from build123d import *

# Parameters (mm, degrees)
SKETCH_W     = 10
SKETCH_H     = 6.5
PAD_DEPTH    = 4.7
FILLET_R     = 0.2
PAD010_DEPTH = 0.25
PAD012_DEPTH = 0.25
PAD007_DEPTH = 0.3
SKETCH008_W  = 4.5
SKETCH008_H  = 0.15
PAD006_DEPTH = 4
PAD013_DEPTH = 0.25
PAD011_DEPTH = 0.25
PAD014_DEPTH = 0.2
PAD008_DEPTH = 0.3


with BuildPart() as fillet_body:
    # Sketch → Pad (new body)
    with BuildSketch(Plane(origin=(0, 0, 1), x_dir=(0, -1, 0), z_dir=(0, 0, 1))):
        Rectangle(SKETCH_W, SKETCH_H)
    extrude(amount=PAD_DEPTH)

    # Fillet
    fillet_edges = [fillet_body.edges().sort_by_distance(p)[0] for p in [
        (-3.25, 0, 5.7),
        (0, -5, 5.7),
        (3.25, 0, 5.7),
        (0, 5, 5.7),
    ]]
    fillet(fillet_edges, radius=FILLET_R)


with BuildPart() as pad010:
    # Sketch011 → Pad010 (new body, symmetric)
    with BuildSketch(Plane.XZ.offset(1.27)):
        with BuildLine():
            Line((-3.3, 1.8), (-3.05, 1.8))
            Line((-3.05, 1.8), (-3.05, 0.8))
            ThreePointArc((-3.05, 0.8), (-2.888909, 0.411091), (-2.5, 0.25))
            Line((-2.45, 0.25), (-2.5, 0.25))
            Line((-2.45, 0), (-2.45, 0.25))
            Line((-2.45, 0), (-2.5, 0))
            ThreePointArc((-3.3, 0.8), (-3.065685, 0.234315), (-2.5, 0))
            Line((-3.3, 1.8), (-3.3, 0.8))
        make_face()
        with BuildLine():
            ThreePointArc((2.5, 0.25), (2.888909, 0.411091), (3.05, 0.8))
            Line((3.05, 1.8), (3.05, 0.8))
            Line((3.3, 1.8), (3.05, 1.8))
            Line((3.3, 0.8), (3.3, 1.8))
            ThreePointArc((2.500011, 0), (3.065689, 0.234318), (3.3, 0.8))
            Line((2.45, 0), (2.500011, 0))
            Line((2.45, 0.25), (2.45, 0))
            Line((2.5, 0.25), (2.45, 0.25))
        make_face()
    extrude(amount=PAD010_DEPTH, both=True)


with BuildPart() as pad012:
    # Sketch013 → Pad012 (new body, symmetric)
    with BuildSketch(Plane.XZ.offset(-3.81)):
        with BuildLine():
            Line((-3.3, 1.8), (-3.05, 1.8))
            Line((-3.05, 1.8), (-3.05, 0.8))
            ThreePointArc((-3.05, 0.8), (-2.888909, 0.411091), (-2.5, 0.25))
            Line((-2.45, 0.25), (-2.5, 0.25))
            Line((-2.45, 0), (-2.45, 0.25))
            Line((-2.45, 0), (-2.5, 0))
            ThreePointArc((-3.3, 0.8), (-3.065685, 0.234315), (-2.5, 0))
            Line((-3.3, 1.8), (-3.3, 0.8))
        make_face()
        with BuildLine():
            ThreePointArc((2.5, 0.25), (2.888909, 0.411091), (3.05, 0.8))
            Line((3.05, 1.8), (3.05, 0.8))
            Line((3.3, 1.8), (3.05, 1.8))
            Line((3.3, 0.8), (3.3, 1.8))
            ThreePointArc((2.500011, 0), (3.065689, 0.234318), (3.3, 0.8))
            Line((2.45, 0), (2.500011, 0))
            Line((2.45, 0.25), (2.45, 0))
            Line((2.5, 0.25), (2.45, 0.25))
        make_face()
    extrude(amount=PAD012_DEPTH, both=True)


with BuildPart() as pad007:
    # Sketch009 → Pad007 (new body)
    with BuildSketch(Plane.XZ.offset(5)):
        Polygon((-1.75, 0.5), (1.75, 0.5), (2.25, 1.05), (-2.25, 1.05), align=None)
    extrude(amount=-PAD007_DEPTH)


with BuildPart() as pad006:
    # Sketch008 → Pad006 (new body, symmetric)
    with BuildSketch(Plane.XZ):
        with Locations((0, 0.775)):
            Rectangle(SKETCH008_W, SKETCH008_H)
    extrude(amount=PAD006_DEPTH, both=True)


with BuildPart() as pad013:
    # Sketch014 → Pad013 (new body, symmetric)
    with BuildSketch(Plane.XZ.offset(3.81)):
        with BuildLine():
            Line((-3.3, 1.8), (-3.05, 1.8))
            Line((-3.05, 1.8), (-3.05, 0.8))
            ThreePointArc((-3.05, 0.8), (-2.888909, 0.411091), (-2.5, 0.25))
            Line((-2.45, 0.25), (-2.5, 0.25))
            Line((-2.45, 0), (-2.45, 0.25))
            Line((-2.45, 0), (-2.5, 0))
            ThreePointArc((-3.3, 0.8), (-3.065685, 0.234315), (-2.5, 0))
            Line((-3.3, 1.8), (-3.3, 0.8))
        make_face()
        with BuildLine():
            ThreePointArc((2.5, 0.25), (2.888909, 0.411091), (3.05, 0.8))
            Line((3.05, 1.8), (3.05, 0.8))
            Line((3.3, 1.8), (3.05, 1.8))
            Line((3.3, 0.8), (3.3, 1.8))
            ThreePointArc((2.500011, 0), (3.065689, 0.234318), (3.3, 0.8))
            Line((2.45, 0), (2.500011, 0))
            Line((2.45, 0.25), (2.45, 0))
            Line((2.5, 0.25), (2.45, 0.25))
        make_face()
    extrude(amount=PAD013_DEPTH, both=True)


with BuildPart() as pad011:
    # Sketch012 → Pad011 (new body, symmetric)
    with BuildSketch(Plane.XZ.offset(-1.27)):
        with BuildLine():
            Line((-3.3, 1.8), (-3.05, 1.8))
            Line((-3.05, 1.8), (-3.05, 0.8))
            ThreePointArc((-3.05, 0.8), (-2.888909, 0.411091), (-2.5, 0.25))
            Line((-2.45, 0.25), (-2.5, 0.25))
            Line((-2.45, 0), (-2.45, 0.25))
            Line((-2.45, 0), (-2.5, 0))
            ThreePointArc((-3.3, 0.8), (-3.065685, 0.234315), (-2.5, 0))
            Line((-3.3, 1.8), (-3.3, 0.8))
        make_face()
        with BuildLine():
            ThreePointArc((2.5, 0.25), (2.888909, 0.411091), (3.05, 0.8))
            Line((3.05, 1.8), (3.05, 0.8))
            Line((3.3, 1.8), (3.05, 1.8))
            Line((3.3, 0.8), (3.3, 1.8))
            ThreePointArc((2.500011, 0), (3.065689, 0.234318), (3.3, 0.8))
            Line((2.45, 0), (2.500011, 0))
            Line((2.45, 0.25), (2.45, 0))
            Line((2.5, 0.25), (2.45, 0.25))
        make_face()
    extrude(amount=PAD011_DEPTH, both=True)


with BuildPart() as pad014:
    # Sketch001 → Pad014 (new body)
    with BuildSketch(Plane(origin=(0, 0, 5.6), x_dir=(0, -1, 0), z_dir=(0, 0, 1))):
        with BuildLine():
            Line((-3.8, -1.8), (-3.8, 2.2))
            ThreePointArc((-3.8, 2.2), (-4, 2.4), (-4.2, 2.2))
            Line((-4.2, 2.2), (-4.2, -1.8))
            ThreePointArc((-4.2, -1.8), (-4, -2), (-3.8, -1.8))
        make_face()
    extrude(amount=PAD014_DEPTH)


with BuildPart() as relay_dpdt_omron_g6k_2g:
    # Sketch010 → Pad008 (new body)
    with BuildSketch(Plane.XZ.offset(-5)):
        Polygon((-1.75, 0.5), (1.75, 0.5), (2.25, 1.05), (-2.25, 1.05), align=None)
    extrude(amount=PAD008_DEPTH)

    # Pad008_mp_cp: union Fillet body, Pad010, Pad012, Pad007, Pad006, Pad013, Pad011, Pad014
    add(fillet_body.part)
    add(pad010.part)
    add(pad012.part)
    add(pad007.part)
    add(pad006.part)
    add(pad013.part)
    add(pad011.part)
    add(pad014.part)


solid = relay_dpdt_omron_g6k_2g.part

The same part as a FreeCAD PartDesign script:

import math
import FreeCAD as App
import Part
import Sketcher
Q = App.Units.Quantity


def edges_at(feature, points):
    """Names of the edges that pass closest to the given points."""
    edges = feature.Shape.Edges
    near = lambda p: min(range(len(edges)), key=lambda i: edges[i].distToShape(Part.Vertex(*p))[0])
    return sorted({f"Edge{near(p) + 1}" for p in points})

doc = App.newDocument("Part")
body = doc.addObject("PartDesign::Body", "Body")

# Sketch on XY plane
sketch1 = body.newObject("Sketcher::SketchObject", "Sketch")
sketch1.AttachmentSupport = (doc.getObject("XY_Plane"), [""])
sketch1.MapMode = "FlatFace"
sketch1.AttachmentOffset = App.Placement(App.Vector(0, 0, 1), App.Rotation())
sketch1.addGeometry(Part.LineSegment(App.Vector(3.25, 5, 0), App.Vector(-3.25, 5, 0)), False)
sketch1.addGeometry(Part.LineSegment(App.Vector(-3.25, 5, 0), App.Vector(-3.25, -5, 0)), False)
sketch1.addGeometry(Part.LineSegment(App.Vector(-3.25, -5, 0), App.Vector(3.25, -5, 0)), False)
sketch1.addGeometry(Part.LineSegment(App.Vector(3.25, -5, 0), App.Vector(3.25, 5, 0)), False)
sketch1.addConstraint(Sketcher.Constraint("Coincident", 0, 2, 1, 1))
sketch1.addConstraint(Sketcher.Constraint("Coincident", 1, 2, 2, 1))
sketch1.addConstraint(Sketcher.Constraint("Coincident", 2, 2, 3, 1))
sketch1.addConstraint(Sketcher.Constraint("Coincident", 3, 2, 0, 1))
sketch1.addConstraint(Sketcher.Constraint("Horizontal", 0))
sketch1.addConstraint(Sketcher.Constraint("Vertical", 1))
sketch1.addConstraint(Sketcher.Constraint("Horizontal", 2))
sketch1.addConstraint(Sketcher.Constraint("Vertical", 3))
sketch1.addConstraint(Sketcher.Constraint("Symmetric", 0, 2, 2, 2, -1, 1))
sketch1.addConstraint(Sketcher.Constraint("DistanceY", 1, 2, 1, 1, Q("10 mm")))
sketch1.addConstraint(Sketcher.Constraint("DistanceX", 0, 2, 0, 1, Q("6.5 mm")))
pad1 = body.newObject("PartDesign::Pad", "Pad")
pad1.Profile = sketch1
pad1.Length = 4.7
doc.recompute()

fillet = body.newObject("PartDesign::Fillet", "Fillet")
fillet.Base = (pad1, edges_at(pad1, [
    (-3.25, 0, 5.7),
    (0, -5, 5.7),
    (3.25, 0, 5.7),
    (0, 5, 5.7),
]))
fillet.Radius = 0.2
body2 = doc.addObject("PartDesign::Body", "Body001")
body2.AllowCompound = True

# Sketch on XZ plane
sketch2 = body2.newObject("Sketcher::SketchObject", "Sketch001")
sketch2.AttachmentSupport = (doc.getObject("XZ_Plane001"), [""])
sketch2.MapMode = "FlatFace"
sketch2.AttachmentOffset = App.Placement(App.Vector(0, 0, 1.27), App.Rotation())
sketch2.addGeometry(Part.LineSegment(App.Vector(-3.05, 1.8, 0), App.Vector(-3.3, 1.8, 0)), False)
sketch2.addGeometry(Part.LineSegment(App.Vector(-3.3, 1.8, 0), App.Vector(-3.3, 0.8, 0)), False)
sketch2.addGeometry(Part.ArcOfCircle(Part.Circle(App.Vector(-2.499999, 0.800001, 0), App.Vector(0, 0, 1), 0.800001), math.radians(-179.999896), math.radians(-90.000104)), False)
sketch2.addGeometry(Part.LineSegment(App.Vector(-2.5, 0, 0), App.Vector(-2.45, 0, 0)), False)
sketch2.addGeometry(Part.LineSegment(App.Vector(-2.45, 0, 0), App.Vector(-2.45, 0.25, 0)), False)
sketch2.addGeometry(Part.LineSegment(App.Vector(-2.45, 0.25, 0), App.Vector(-2.5, 0.25, 0)), False)
sketch2.addGeometry(Part.ArcOfCircle(Part.Circle(App.Vector(-2.500001, 0.799999, 0), App.Vector(0, 0, 1), 0.549999), math.radians(179.999904), math.radians(270.000096)), False)
sketch2.addGeometry(Part.LineSegment(App.Vector(-3.05, 0.8, 0), App.Vector(-3.05, 1.8, 0)), False)
sketch2.addGeometry(Part.ArcOfCircle(Part.Circle(App.Vector(2.500001, 0.799999, 0), App.Vector(0, 0, 1), 0.549999), math.radians(-90.000096), math.radians(0.000096)), False)
sketch2.addGeometry(Part.LineSegment(App.Vector(2.5, 0.25, 0), App.Vector(2.45, 0.25, 0)), False)
sketch2.addGeometry(Part.LineSegment(App.Vector(2.45, 0.25, 0), App.Vector(2.45, 0, 0)), False)
sketch2.addGeometry(Part.LineSegment(App.Vector(2.45, 0, 0), App.Vector(2.500011, 0, 0)), False)
sketch2.addGeometry(Part.ArcOfCircle(Part.Circle(App.Vector(2.5, 0.8, 0), App.Vector(0, 0, 1), 0.8), math.radians(-89.999231), math.radians(0.000018)), False)
sketch2.addGeometry(Part.LineSegment(App.Vector(3.3, 0.8, 0), App.Vector(3.3, 1.8, 0)), False)
sketch2.addGeometry(Part.LineSegment(App.Vector(3.3, 1.8, 0), App.Vector(3.05, 1.8, 0)), False)
sketch2.addGeometry(Part.LineSegment(App.Vector(3.05, 1.8, 0), App.Vector(3.05, 0.8, 0)), False)
sketch2.addConstraint(Sketcher.Constraint("Coincident", 0, 2, 1, 1))
sketch2.addConstraint(Sketcher.Constraint("Tangent", 1, 2, 2, 1))
sketch2.addConstraint(Sketcher.Constraint("Tangent", 2, 2, 3, 1))
sketch2.addConstraint(Sketcher.Constraint("Coincident", 3, 2, 4, 1))
sketch2.addConstraint(Sketcher.Constraint("Coincident", 4, 2, 5, 1))
sketch2.addConstraint(Sketcher.Constraint("Tangent", 5, 2, 6, 2))
sketch2.addConstraint(Sketcher.Constraint("Tangent", 6, 1, 7, 1))
sketch2.addConstraint(Sketcher.Constraint("Coincident", 7, 2, 0, 1))
sketch2.addConstraint(Sketcher.Constraint("Tangent", 8, 1, 9, 1))
sketch2.addConstraint(Sketcher.Constraint("Coincident", 9, 2, 10, 1))
sketch2.addConstraint(Sketcher.Constraint("Coincident", 10, 2, 11, 1))
sketch2.addConstraint(Sketcher.Constraint("Coincident", 11, 2, 12, 1))
sketch2.addConstraint(Sketcher.Constraint("Tangent", 12, 2, 13, 1))
sketch2.addConstraint(Sketcher.Constraint("Coincident", 13, 2, 14, 1))
sketch2.addConstraint(Sketcher.Constraint("Coincident", 14, 2, 15, 1))
sketch2.addConstraint(Sketcher.Constraint("Tangent", 15, 2, 8, 2))
sketch2.addConstraint(Sketcher.Constraint("Horizontal", 0))
sketch2.addConstraint(Sketcher.Constraint("Vertical", 1))
sketch2.addConstraint(Sketcher.Constraint("Horizontal", 3))
sketch2.addConstraint(Sketcher.Constraint("Vertical", 4))
sketch2.addConstraint(Sketcher.Constraint("Horizontal", 5))
sketch2.addConstraint(Sketcher.Constraint("Vertical", 7))
sketch2.addConstraint(Sketcher.Constraint("Horizontal", 9))
sketch2.addConstraint(Sketcher.Constraint("Vertical", 10))
sketch2.addConstraint(Sketcher.Constraint("Horizontal", 11))
sketch2.addConstraint(Sketcher.Constraint("Vertical", 13))
sketch2.addConstraint(Sketcher.Constraint("Horizontal", 14))
sketch2.addConstraint(Sketcher.Constraint("Vertical", 15))
sketch2.addConstraint(Sketcher.Constraint("Coincident", 6, 3, 2, 3))
sketch2.addConstraint(Sketcher.Constraint("Coincident", 12, 3, 8, 3))
sketch2.addConstraint(Sketcher.Constraint("Equal", 6, 8))
sketch2.addConstraint(Sketcher.Constraint("Equal", 2, 12))
sketch2.addConstraint(Sketcher.Constraint("Symmetric", 3, 2, 10, 2, -1, 1))
sketch2.addConstraint(Sketcher.Constraint("Symmetric", 2, 3, 8, 3, -2))
sketch2.addConstraint(Sketcher.Constraint("Horizontal", 7, 2, 13, 2))
sketch2.addConstraint(Sketcher.Constraint("Radius", 2, Q("0.800001 mm")))
sketch2.addConstraint(Sketcher.Constraint("DistanceY", 1, 2, 1, 1, Q("1 mm")))
sketch2.addConstraint(Sketcher.Constraint("Radius", 6, Q("0.549999 mm")))
sketch2.addConstraint(Sketcher.Constraint("DistanceX", 2, 3, 8, 3, Q("4.999999 mm")))
sketch2.addConstraint(Sketcher.Constraint("DistanceX", 3, 1, 3, 2, Q("0.05 mm")))
sketch2.addConstraint(Sketcher.Constraint("DistanceX", 11, 1, 11, 2, Q("0.050011 mm")))
pad2 = body2.newObject("PartDesign::Pad", "Pad001")
pad2.Profile = sketch2
pad2.Length = 0.5
pad2.Midplane = True
body3 = doc.addObject("PartDesign::Body", "Body002")
body3.AllowCompound = True

# Sketch on XZ plane
sketch3 = body3.newObject("Sketcher::SketchObject", "Sketch002")
sketch3.AttachmentSupport = (doc.getObject("XZ_Plane002"), [""])
sketch3.MapMode = "FlatFace"
sketch3.AttachmentOffset = App.Placement(App.Vector(0, 0, -3.81), App.Rotation())
sketch3.addGeometry(Part.LineSegment(App.Vector(-3.05, 1.8, 0), App.Vector(-3.3, 1.8, 0)), False)
sketch3.addGeometry(Part.LineSegment(App.Vector(-3.3, 1.8, 0), App.Vector(-3.3, 0.8, 0)), False)
sketch3.addGeometry(Part.ArcOfCircle(Part.Circle(App.Vector(-2.499999, 0.800001, 0), App.Vector(0, 0, 1), 0.800001), math.radians(-179.999896), math.radians(-90.000104)), False)
sketch3.addGeometry(Part.LineSegment(App.Vector(-2.5, 0, 0), App.Vector(-2.45, 0, 0)), False)
sketch3.addGeometry(Part.LineSegment(App.Vector(-2.45, 0, 0), App.Vector(-2.45, 0.25, 0)), False)
sketch3.addGeometry(Part.LineSegment(App.Vector(-2.45, 0.25, 0), App.Vector(-2.5, 0.25, 0)), False)
sketch3.addGeometry(Part.ArcOfCircle(Part.Circle(App.Vector(-2.500001, 0.799999, 0), App.Vector(0, 0, 1), 0.549999), math.radians(179.999904), math.radians(270.000096)), False)
sketch3.addGeometry(Part.LineSegment(App.Vector(-3.05, 0.8, 0), App.Vector(-3.05, 1.8, 0)), False)
sketch3.addGeometry(Part.ArcOfCircle(Part.Circle(App.Vector(2.500001, 0.799999, 0), App.Vector(0, 0, 1), 0.549999), math.radians(-90.000096), math.radians(0.000096)), False)
sketch3.addGeometry(Part.LineSegment(App.Vector(2.5, 0.25, 0), App.Vector(2.45, 0.25, 0)), False)
sketch3.addGeometry(Part.LineSegment(App.Vector(2.45, 0.25, 0), App.Vector(2.45, 0, 0)), False)
sketch3.addGeometry(Part.LineSegment(App.Vector(2.45, 0, 0), App.Vector(2.500011, 0, 0)), False)
sketch3.addGeometry(Part.ArcOfCircle(Part.Circle(App.Vector(2.5, 0.8, 0), App.Vector(0, 0, 1), 0.8), math.radians(-89.999231), math.radians(0.000018)), False)
sketch3.addGeometry(Part.LineSegment(App.Vector(3.3, 0.8, 0), App.Vector(3.3, 1.8, 0)), False)
sketch3.addGeometry(Part.LineSegment(App.Vector(3.3, 1.8, 0), App.Vector(3.05, 1.8, 0)), False)
sketch3.addGeometry(Part.LineSegment(App.Vector(3.05, 1.8, 0), App.Vector(3.05, 0.8, 0)), False)
sketch3.addConstraint(Sketcher.Constraint("Coincident", 0, 2, 1, 1))
sketch3.addConstraint(Sketcher.Constraint("Tangent", 1, 2, 2, 1))
sketch3.addConstraint(Sketcher.Constraint("Tangent", 2, 2, 3, 1))
sketch3.addConstraint(Sketcher.Constraint("Coincident", 3, 2, 4, 1))
sketch3.addConstraint(Sketcher.Constraint("Coincident", 4, 2, 5, 1))
sketch3.addConstraint(Sketcher.Constraint("Tangent", 5, 2, 6, 2))
sketch3.addConstraint(Sketcher.Constraint("Tangent", 6, 1, 7, 1))
sketch3.addConstraint(Sketcher.Constraint("Coincident", 7, 2, 0, 1))
sketch3.addConstraint(Sketcher.Constraint("Tangent", 8, 1, 9, 1))
sketch3.addConstraint(Sketcher.Constraint("Coincident", 9, 2, 10, 1))
sketch3.addConstraint(Sketcher.Constraint("Coincident", 10, 2, 11, 1))
sketch3.addConstraint(Sketcher.Constraint("Coincident", 11, 2, 12, 1))
sketch3.addConstraint(Sketcher.Constraint("Tangent", 12, 2, 13, 1))
sketch3.addConstraint(Sketcher.Constraint("Coincident", 13, 2, 14, 1))
sketch3.addConstraint(Sketcher.Constraint("Coincident", 14, 2, 15, 1))
sketch3.addConstraint(Sketcher.Constraint("Tangent", 15, 2, 8, 2))
sketch3.addConstraint(Sketcher.Constraint("Horizontal", 0))
sketch3.addConstraint(Sketcher.Constraint("Vertical", 1))
sketch3.addConstraint(Sketcher.Constraint("Horizontal", 3))
sketch3.addConstraint(Sketcher.Constraint("Vertical", 4))
sketch3.addConstraint(Sketcher.Constraint("Horizontal", 5))
sketch3.addConstraint(Sketcher.Constraint("Vertical", 7))
sketch3.addConstraint(Sketcher.Constraint("Horizontal", 9))
sketch3.addConstraint(Sketcher.Constraint("Vertical", 10))
sketch3.addConstraint(Sketcher.Constraint("Horizontal", 11))
sketch3.addConstraint(Sketcher.Constraint("Vertical", 13))
sketch3.addConstraint(Sketcher.Constraint("Horizontal", 14))
sketch3.addConstraint(Sketcher.Constraint("Vertical", 15))
sketch3.addConstraint(Sketcher.Constraint("Coincident", 6, 3, 2, 3))
sketch3.addConstraint(Sketcher.Constraint("Coincident", 12, 3, 8, 3))
sketch3.addConstraint(Sketcher.Constraint("Equal", 6, 8))
sketch3.addConstraint(Sketcher.Constraint("Equal", 2, 12))
sketch3.addConstraint(Sketcher.Constraint("Symmetric", 3, 2, 10, 2, -1, 1))
sketch3.addConstraint(Sketcher.Constraint("Symmetric", 2, 3, 8, 3, -2))
sketch3.addConstraint(Sketcher.Constraint("Horizontal", 7, 2, 13, 2))
sketch3.addConstraint(Sketcher.Constraint("Radius", 2, Q("0.800001 mm")))
sketch3.addConstraint(Sketcher.Constraint("DistanceY", 1, 2, 1, 1, Q("1 mm")))
sketch3.addConstraint(Sketcher.Constraint("Radius", 6, Q("0.549999 mm")))
sketch3.addConstraint(Sketcher.Constraint("DistanceX", 2, 3, 8, 3, Q("4.999999 mm")))
sketch3.addConstraint(Sketcher.Constraint("DistanceX", 3, 1, 3, 2, Q("0.05 mm")))
sketch3.addConstraint(Sketcher.Constraint("DistanceX", 11, 1, 11, 2, Q("0.050011 mm")))
pad3 = body3.newObject("PartDesign::Pad", "Pad002")
pad3.Profile = sketch3
pad3.Length = 0.5
pad3.Midplane = True
body4 = doc.addObject("PartDesign::Body", "Body003")

# Sketch on XZ plane
sketch4 = body4.newObject("Sketcher::SketchObject", "Sketch003")
sketch4.AttachmentSupport = (doc.getObject("XZ_Plane003"), [""])
sketch4.MapMode = "FlatFace"
sketch4.AttachmentOffset = App.Placement(App.Vector(0, 0, 5), App.Rotation())
sketch4.addGeometry(Part.LineSegment(App.Vector(-1.75, 0.5, 0), App.Vector(1.75, 0.5, 0)), False)
sketch4.addGeometry(Part.LineSegment(App.Vector(1.75, 0.5, 0), App.Vector(2.25, 1.05, 0)), False)
sketch4.addGeometry(Part.LineSegment(App.Vector(2.25, 1.05, 0), App.Vector(-2.25, 1.05, 0)), False)
sketch4.addGeometry(Part.LineSegment(App.Vector(-2.25, 1.05, 0), App.Vector(-1.75, 0.5, 0)), False)
sketch4.addConstraint(Sketcher.Constraint("Coincident", 0, 2, 1, 1))
sketch4.addConstraint(Sketcher.Constraint("Coincident", 1, 2, 2, 1))
sketch4.addConstraint(Sketcher.Constraint("Coincident", 2, 2, 3, 1))
sketch4.addConstraint(Sketcher.Constraint("Coincident", 3, 2, 0, 1))
sketch4.addConstraint(Sketcher.Constraint("Horizontal", 0))
sketch4.addConstraint(Sketcher.Constraint("Horizontal", 2))
sketch4.addConstraint(Sketcher.Constraint("Equal", 1, 3))
sketch4.addConstraint(Sketcher.Constraint("DistanceX", 0, 1, 0, 2, Q("3.5 mm")))
sketch4.addConstraint(Sketcher.Constraint("DistanceX", 2, 2, 2, 1, Q("4.5 mm")))
sketch4.addConstraint(Sketcher.Constraint("DistanceY", -1, 1, 0, 2, Q("0.5 mm")))
sketch4.addConstraint(Sketcher.Constraint("DistanceX", -1, 1, 0, 2, Q("1.75 mm")))
sketch4.addConstraint(Sketcher.Constraint("DistanceY", -1, 1, 1, 2, Q("1.05 mm")))
pad4 = body4.newObject("PartDesign::Pad", "Pad003")
pad4.Profile = sketch4
pad4.Length = 0.3
pad4.Reversed = True
body5 = doc.addObject("PartDesign::Body", "Body004")

# Sketch on XZ plane
sketch5 = body5.newObject("Sketcher::SketchObject", "Sketch004")
sketch5.AttachmentSupport = (doc.getObject("XZ_Plane004"), [""])
sketch5.MapMode = "FlatFace"
sketch5.addGeometry(Part.LineSegment(App.Vector(-2.25, 0.85, 0), App.Vector(-2.25, 0.7, 0)), False)
sketch5.addGeometry(Part.LineSegment(App.Vector(-2.25, 0.7, 0), App.Vector(2.25, 0.7, 0)), False)
sketch5.addGeometry(Part.LineSegment(App.Vector(2.25, 0.7, 0), App.Vector(2.25, 0.85, 0)), False)
sketch5.addGeometry(Part.LineSegment(App.Vector(2.25, 0.85, 0), App.Vector(-2.25, 0.85, 0)), False)
sketch5.addConstraint(Sketcher.Constraint("Coincident", 0, 2, 1, 1))
sketch5.addConstraint(Sketcher.Constraint("Coincident", 1, 2, 2, 1))
sketch5.addConstraint(Sketcher.Constraint("Coincident", 2, 2, 3, 1))
sketch5.addConstraint(Sketcher.Constraint("Coincident", 3, 2, 0, 1))
sketch5.addConstraint(Sketcher.Constraint("Vertical", 0))
sketch5.addConstraint(Sketcher.Constraint("Horizontal", 1))
sketch5.addConstraint(Sketcher.Constraint("Vertical", 2))
sketch5.addConstraint(Sketcher.Constraint("Horizontal", 3))
sketch5.addConstraint(Sketcher.Constraint("DistanceX", 1, 1, 1, 2, Q("4.5 mm")))
sketch5.addConstraint(Sketcher.Constraint("DistanceY", 0, 2, 0, 1, Q("0.15 mm")))
sketch5.addConstraint(Sketcher.Constraint("DistanceY", -1, 1, 0, 2, Q("0.7 mm")))
sketch5.addConstraint(Sketcher.Constraint("DistanceX", 0, 2, -1, 1, Q("2.25 mm")))
pad5 = body5.newObject("PartDesign::Pad", "Pad004")
pad5.Profile = sketch5
pad5.Length = 8
pad5.Midplane = True
body6 = doc.addObject("PartDesign::Body", "Body005")
body6.AllowCompound = True

# Sketch on XZ plane
sketch6 = body6.newObject("Sketcher::SketchObject", "Sketch005")
sketch6.AttachmentSupport = (doc.getObject("XZ_Plane005"), [""])
sketch6.MapMode = "FlatFace"
sketch6.AttachmentOffset = App.Placement(App.Vector(0, 0, 3.81), App.Rotation())
sketch6.addGeometry(Part.LineSegment(App.Vector(-3.05, 1.8, 0), App.Vector(-3.3, 1.8, 0)), False)
sketch6.addGeometry(Part.LineSegment(App.Vector(-3.3, 1.8, 0), App.Vector(-3.3, 0.8, 0)), False)
sketch6.addGeometry(Part.ArcOfCircle(Part.Circle(App.Vector(-2.499999, 0.800001, 0), App.Vector(0, 0, 1), 0.800001), math.radians(-179.999896), math.radians(-90.000104)), False)
sketch6.addGeometry(Part.LineSegment(App.Vector(-2.5, 0, 0), App.Vector(-2.45, 0, 0)), False)
sketch6.addGeometry(Part.LineSegment(App.Vector(-2.45, 0, 0), App.Vector(-2.45, 0.25, 0)), False)
sketch6.addGeometry(Part.LineSegment(App.Vector(-2.45, 0.25, 0), App.Vector(-2.5, 0.25, 0)), False)
sketch6.addGeometry(Part.ArcOfCircle(Part.Circle(App.Vector(-2.500001, 0.799999, 0), App.Vector(0, 0, 1), 0.549999), math.radians(179.999904), math.radians(270.000096)), False)
sketch6.addGeometry(Part.LineSegment(App.Vector(-3.05, 0.8, 0), App.Vector(-3.05, 1.8, 0)), False)
sketch6.addGeometry(Part.ArcOfCircle(Part.Circle(App.Vector(2.500001, 0.799999, 0), App.Vector(0, 0, 1), 0.549999), math.radians(-90.000096), math.radians(0.000096)), False)
sketch6.addGeometry(Part.LineSegment(App.Vector(2.5, 0.25, 0), App.Vector(2.45, 0.25, 0)), False)
sketch6.addGeometry(Part.LineSegment(App.Vector(2.45, 0.25, 0), App.Vector(2.45, 0, 0)), False)
sketch6.addGeometry(Part.LineSegment(App.Vector(2.45, 0, 0), App.Vector(2.500011, 0, 0)), False)
sketch6.addGeometry(Part.ArcOfCircle(Part.Circle(App.Vector(2.5, 0.8, 0), App.Vector(0, 0, 1), 0.8), math.radians(-89.999231), math.radians(0.000018)), False)
sketch6.addGeometry(Part.LineSegment(App.Vector(3.3, 0.8, 0), App.Vector(3.3, 1.8, 0)), False)
sketch6.addGeometry(Part.LineSegment(App.Vector(3.3, 1.8, 0), App.Vector(3.05, 1.8, 0)), False)
sketch6.addGeometry(Part.LineSegment(App.Vector(3.05, 1.8, 0), App.Vector(3.05, 0.8, 0)), False)
sketch6.addConstraint(Sketcher.Constraint("Coincident", 0, 2, 1, 1))
sketch6.addConstraint(Sketcher.Constraint("Tangent", 1, 2, 2, 1))
sketch6.addConstraint(Sketcher.Constraint("Tangent", 2, 2, 3, 1))
sketch6.addConstraint(Sketcher.Constraint("Coincident", 3, 2, 4, 1))
sketch6.addConstraint(Sketcher.Constraint("Coincident", 4, 2, 5, 1))
sketch6.addConstraint(Sketcher.Constraint("Tangent", 5, 2, 6, 2))
sketch6.addConstraint(Sketcher.Constraint("Tangent", 6, 1, 7, 1))
sketch6.addConstraint(Sketcher.Constraint("Coincident", 7, 2, 0, 1))
sketch6.addConstraint(Sketcher.Constraint("Tangent", 8, 1, 9, 1))
sketch6.addConstraint(Sketcher.Constraint("Coincident", 9, 2, 10, 1))
sketch6.addConstraint(Sketcher.Constraint("Coincident", 10, 2, 11, 1))
sketch6.addConstraint(Sketcher.Constraint("Coincident", 11, 2, 12, 1))
sketch6.addConstraint(Sketcher.Constraint("Tangent", 12, 2, 13, 1))
sketch6.addConstraint(Sketcher.Constraint("Coincident", 13, 2, 14, 1))
sketch6.addConstraint(Sketcher.Constraint("Coincident", 14, 2, 15, 1))
sketch6.addConstraint(Sketcher.Constraint("Tangent", 15, 2, 8, 2))
sketch6.addConstraint(Sketcher.Constraint("Horizontal", 0))
sketch6.addConstraint(Sketcher.Constraint("Vertical", 1))
sketch6.addConstraint(Sketcher.Constraint("Horizontal", 3))
sketch6.addConstraint(Sketcher.Constraint("Vertical", 4))
sketch6.addConstraint(Sketcher.Constraint("Horizontal", 5))
sketch6.addConstraint(Sketcher.Constraint("Vertical", 7))
sketch6.addConstraint(Sketcher.Constraint("Horizontal", 9))
sketch6.addConstraint(Sketcher.Constraint("Vertical", 10))
sketch6.addConstraint(Sketcher.Constraint("Horizontal", 11))
sketch6.addConstraint(Sketcher.Constraint("Vertical", 13))
sketch6.addConstraint(Sketcher.Constraint("Horizontal", 14))
sketch6.addConstraint(Sketcher.Constraint("Vertical", 15))
sketch6.addConstraint(Sketcher.Constraint("Coincident", 6, 3, 2, 3))
sketch6.addConstraint(Sketcher.Constraint("Coincident", 12, 3, 8, 3))
sketch6.addConstraint(Sketcher.Constraint("Equal", 6, 8))
sketch6.addConstraint(Sketcher.Constraint("Equal", 2, 12))
sketch6.addConstraint(Sketcher.Constraint("Symmetric", 3, 2, 10, 2, -1, 1))
sketch6.addConstraint(Sketcher.Constraint("Symmetric", 2, 3, 8, 3, -2))
sketch6.addConstraint(Sketcher.Constraint("Horizontal", 7, 2, 13, 2))
sketch6.addConstraint(Sketcher.Constraint("Radius", 2, Q("0.800001 mm")))
sketch6.addConstraint(Sketcher.Constraint("DistanceY", 1, 2, 1, 1, Q("1 mm")))
sketch6.addConstraint(Sketcher.Constraint("Radius", 6, Q("0.549999 mm")))
sketch6.addConstraint(Sketcher.Constraint("DistanceX", 2, 3, 8, 3, Q("4.999999 mm")))
sketch6.addConstraint(Sketcher.Constraint("DistanceX", 3, 1, 3, 2, Q("0.05 mm")))
sketch6.addConstraint(Sketcher.Constraint("DistanceX", 11, 1, 11, 2, Q("0.050011 mm")))
pad6 = body6.newObject("PartDesign::Pad", "Pad005")
pad6.Profile = sketch6
pad6.Length = 0.5
pad6.Midplane = True
body7 = doc.addObject("PartDesign::Body", "Body006")
body7.AllowCompound = True

# Sketch on XZ plane
sketch7 = body7.newObject("Sketcher::SketchObject", "Sketch006")
sketch7.AttachmentSupport = (doc.getObject("XZ_Plane006"), [""])
sketch7.MapMode = "FlatFace"
sketch7.AttachmentOffset = App.Placement(App.Vector(0, 0, -1.27), App.Rotation())
sketch7.addGeometry(Part.LineSegment(App.Vector(-3.05, 1.8, 0), App.Vector(-3.3, 1.8, 0)), False)
sketch7.addGeometry(Part.LineSegment(App.Vector(-3.3, 1.8, 0), App.Vector(-3.3, 0.8, 0)), False)
sketch7.addGeometry(Part.ArcOfCircle(Part.Circle(App.Vector(-2.499999, 0.800001, 0), App.Vector(0, 0, 1), 0.800001), math.radians(-179.999896), math.radians(-90.000104)), False)
sketch7.addGeometry(Part.LineSegment(App.Vector(-2.5, 0, 0), App.Vector(-2.45, 0, 0)), False)
sketch7.addGeometry(Part.LineSegment(App.Vector(-2.45, 0, 0), App.Vector(-2.45, 0.25, 0)), False)
sketch7.addGeometry(Part.LineSegment(App.Vector(-2.45, 0.25, 0), App.Vector(-2.5, 0.25, 0)), False)
sketch7.addGeometry(Part.ArcOfCircle(Part.Circle(App.Vector(-2.500001, 0.799999, 0), App.Vector(0, 0, 1), 0.549999), math.radians(179.999904), math.radians(270.000096)), False)
sketch7.addGeometry(Part.LineSegment(App.Vector(-3.05, 0.8, 0), App.Vector(-3.05, 1.8, 0)), False)
sketch7.addGeometry(Part.ArcOfCircle(Part.Circle(App.Vector(2.500001, 0.799999, 0), App.Vector(0, 0, 1), 0.549999), math.radians(-90.000096), math.radians(0.000096)), False)
sketch7.addGeometry(Part.LineSegment(App.Vector(2.5, 0.25, 0), App.Vector(2.45, 0.25, 0)), False)
sketch7.addGeometry(Part.LineSegment(App.Vector(2.45, 0.25, 0), App.Vector(2.45, 0, 0)), False)
sketch7.addGeometry(Part.LineSegment(App.Vector(2.45, 0, 0), App.Vector(2.500011, 0, 0)), False)
sketch7.addGeometry(Part.ArcOfCircle(Part.Circle(App.Vector(2.5, 0.8, 0), App.Vector(0, 0, 1), 0.8), math.radians(-89.999231), math.radians(0.000018)), False)
sketch7.addGeometry(Part.LineSegment(App.Vector(3.3, 0.8, 0), App.Vector(3.3, 1.8, 0)), False)
sketch7.addGeometry(Part.LineSegment(App.Vector(3.3, 1.8, 0), App.Vector(3.05, 1.8, 0)), False)
sketch7.addGeometry(Part.LineSegment(App.Vector(3.05, 1.8, 0), App.Vector(3.05, 0.8, 0)), False)
sketch7.addConstraint(Sketcher.Constraint("Coincident", 0, 2, 1, 1))
sketch7.addConstraint(Sketcher.Constraint("Tangent", 1, 2, 2, 1))
sketch7.addConstraint(Sketcher.Constraint("Tangent", 2, 2, 3, 1))
sketch7.addConstraint(Sketcher.Constraint("Coincident", 3, 2, 4, 1))
sketch7.addConstraint(Sketcher.Constraint("Coincident", 4, 2, 5, 1))
sketch7.addConstraint(Sketcher.Constraint("Tangent", 5, 2, 6, 2))
sketch7.addConstraint(Sketcher.Constraint("Tangent", 6, 1, 7, 1))
sketch7.addConstraint(Sketcher.Constraint("Coincident", 7, 2, 0, 1))
sketch7.addConstraint(Sketcher.Constraint("Tangent", 8, 1, 9, 1))
sketch7.addConstraint(Sketcher.Constraint("Coincident", 9, 2, 10, 1))
sketch7.addConstraint(Sketcher.Constraint("Coincident", 10, 2, 11, 1))
sketch7.addConstraint(Sketcher.Constraint("Coincident", 11, 2, 12, 1))
sketch7.addConstraint(Sketcher.Constraint("Tangent", 12, 2, 13, 1))
sketch7.addConstraint(Sketcher.Constraint("Coincident", 13, 2, 14, 1))
sketch7.addConstraint(Sketcher.Constraint("Coincident", 14, 2, 15, 1))
sketch7.addConstraint(Sketcher.Constraint("Tangent", 15, 2, 8, 2))
sketch7.addConstraint(Sketcher.Constraint("Horizontal", 0))
sketch7.addConstraint(Sketcher.Constraint("Vertical", 1))
sketch7.addConstraint(Sketcher.Constraint("Horizontal", 3))
sketch7.addConstraint(Sketcher.Constraint("Vertical", 4))
sketch7.addConstraint(Sketcher.Constraint("Horizontal", 5))
sketch7.addConstraint(Sketcher.Constraint("Vertical", 7))
sketch7.addConstraint(Sketcher.Constraint("Horizontal", 9))
sketch7.addConstraint(Sketcher.Constraint("Vertical", 10))
sketch7.addConstraint(Sketcher.Constraint("Horizontal", 11))
sketch7.addConstraint(Sketcher.Constraint("Vertical", 13))
sketch7.addConstraint(Sketcher.Constraint("Horizontal", 14))
sketch7.addConstraint(Sketcher.Constraint("Vertical", 15))
sketch7.addConstraint(Sketcher.Constraint("Coincident", 6, 3, 2, 3))
sketch7.addConstraint(Sketcher.Constraint("Coincident", 12, 3, 8, 3))
sketch7.addConstraint(Sketcher.Constraint("Equal", 6, 8))
sketch7.addConstraint(Sketcher.Constraint("Equal", 2, 12))
sketch7.addConstraint(Sketcher.Constraint("Symmetric", 3, 2, 10, 2, -1, 1))
sketch7.addConstraint(Sketcher.Constraint("Symmetric", 2, 3, 8, 3, -2))
sketch7.addConstraint(Sketcher.Constraint("Horizontal", 7, 2, 13, 2))
sketch7.addConstraint(Sketcher.Constraint("Radius", 2, Q("0.800001 mm")))
sketch7.addConstraint(Sketcher.Constraint("DistanceY", 1, 2, 1, 1, Q("1 mm")))
sketch7.addConstraint(Sketcher.Constraint("Radius", 6, Q("0.549999 mm")))
sketch7.addConstraint(Sketcher.Constraint("DistanceX", 2, 3, 8, 3, Q("4.999999 mm")))
sketch7.addConstraint(Sketcher.Constraint("DistanceX", 3, 1, 3, 2, Q("0.05 mm")))
sketch7.addConstraint(Sketcher.Constraint("DistanceX", 11, 1, 11, 2, Q("0.050011 mm")))
pad7 = body7.newObject("PartDesign::Pad", "Pad006")
pad7.Profile = sketch7
pad7.Length = 0.5
pad7.Midplane = True
body8 = doc.addObject("PartDesign::Body", "Body007")

# Sketch on XY plane
sketch8 = body8.newObject("Sketcher::SketchObject", "Sketch007")
sketch8.AttachmentSupport = (doc.getObject("XY_Plane007"), [""])
sketch8.MapMode = "FlatFace"
sketch8.AttachmentOffset = App.Placement(App.Vector(0, 0, 5.6), App.Rotation())
sketch8.addGeometry(Part.LineSegment(App.Vector(-1.8, 3.8, 0), App.Vector(2.2, 3.8, 0)), False)
sketch8.addGeometry(Part.ArcOfCircle(Part.Circle(App.Vector(2.2, 4, 0), App.Vector(0, 0, 1), 0.2), math.radians(-90), math.radians(90)), False)
sketch8.addGeometry(Part.LineSegment(App.Vector(2.2, 4.2, 0), App.Vector(-1.8, 4.2, 0)), False)
sketch8.addGeometry(Part.ArcOfCircle(Part.Circle(App.Vector(-1.8, 4, 0), App.Vector(0, 0, 1), 0.2), math.radians(90), math.radians(270)), False)
sketch8.addConstraint(Sketcher.Constraint("Tangent", 0, 2, 1, 1))
sketch8.addConstraint(Sketcher.Constraint("Tangent", 1, 2, 2, 1))
sketch8.addConstraint(Sketcher.Constraint("Tangent", 2, 2, 3, 1))
sketch8.addConstraint(Sketcher.Constraint("Tangent", 3, 2, 0, 1))
sketch8.addConstraint(Sketcher.Constraint("Horizontal", 0))
sketch8.addConstraint(Sketcher.Constraint("Horizontal", 2))
sketch8.addConstraint(Sketcher.Constraint("Radius", 1, Q("0.2 mm")))
sketch8.addConstraint(Sketcher.Constraint("DistanceX", 0, 1, 0, 2, Q("4 mm")))
sketch8.addConstraint(Sketcher.Constraint("DistanceY", -1, 1, 1, 3, Q("4 mm")))
sketch8.addConstraint(Sketcher.Constraint("DistanceX", -1, 1, 1, 3, Q("2.2 mm")))
pad8 = body8.newObject("PartDesign::Pad", "Pad007")
pad8.Profile = sketch8
pad8.Length = 0.2
body9 = doc.addObject("PartDesign::Body", "Body008")
body9.AllowCompound = True

# Sketch on XZ plane
sketch9 = body9.newObject("Sketcher::SketchObject", "Sketch008")
sketch9.AttachmentSupport = (doc.getObject("XZ_Plane008"), [""])
sketch9.MapMode = "FlatFace"
sketch9.AttachmentOffset = App.Placement(App.Vector(0, 0, -5), App.Rotation())
sketch9.addGeometry(Part.LineSegment(App.Vector(-1.75, 0.5, 0), App.Vector(1.75, 0.5, 0)), False)
sketch9.addGeometry(Part.LineSegment(App.Vector(1.75, 0.5, 0), App.Vector(2.25, 1.05, 0)), False)
sketch9.addGeometry(Part.LineSegment(App.Vector(2.25, 1.05, 0), App.Vector(-2.25, 1.05, 0)), False)
sketch9.addGeometry(Part.LineSegment(App.Vector(-2.25, 1.05, 0), App.Vector(-1.75, 0.5, 0)), False)
sketch9.addConstraint(Sketcher.Constraint("Coincident", 0, 2, 1, 1))
sketch9.addConstraint(Sketcher.Constraint("Coincident", 1, 2, 2, 1))
sketch9.addConstraint(Sketcher.Constraint("Coincident", 2, 2, 3, 1))
sketch9.addConstraint(Sketcher.Constraint("Coincident", 3, 2, 0, 1))
sketch9.addConstraint(Sketcher.Constraint("Horizontal", 0))
sketch9.addConstraint(Sketcher.Constraint("Horizontal", 2))
sketch9.addConstraint(Sketcher.Constraint("Equal", 1, 3))
sketch9.addConstraint(Sketcher.Constraint("DistanceX", 0, 1, 0, 2, Q("3.5 mm")))
sketch9.addConstraint(Sketcher.Constraint("DistanceX", 2, 2, 2, 1, Q("4.5 mm")))
sketch9.addConstraint(Sketcher.Constraint("DistanceY", -1, 1, 0, 2, Q("0.5 mm")))
sketch9.addConstraint(Sketcher.Constraint("DistanceX", -1, 1, 0, 2, Q("1.75 mm")))
sketch9.addConstraint(Sketcher.Constraint("DistanceY", -1, 1, 1, 2, Q("1.05 mm")))
pad9 = body9.newObject("PartDesign::Pad", "Pad008")
pad9.Profile = sketch9
pad9.Length = 0.3
doc.recompute()

boolean = body9.newObject("PartDesign::Boolean", "Boolean")
boolean.Type = "Fuse"
boolean.addObjects([body])
doc.recompute()

boolean2 = body9.newObject("PartDesign::Boolean", "Boolean001")
boolean2.Type = "Fuse"
boolean2.addObjects([body2])
doc.recompute()

boolean3 = body9.newObject("PartDesign::Boolean", "Boolean002")
boolean3.Type = "Fuse"
boolean3.addObjects([body3])
doc.recompute()

boolean4 = body9.newObject("PartDesign::Boolean", "Boolean003")
boolean4.Type = "Fuse"
boolean4.addObjects([body4])
doc.recompute()

boolean5 = body9.newObject("PartDesign::Boolean", "Boolean004")
boolean5.Type = "Fuse"
boolean5.addObjects([body5])
doc.recompute()

boolean6 = body9.newObject("PartDesign::Boolean", "Boolean005")
boolean6.Type = "Fuse"
boolean6.addObjects([body6])
doc.recompute()

boolean7 = body9.newObject("PartDesign::Boolean", "Boolean006")
boolean7.Type = "Fuse"
boolean7.addObjects([body7])
doc.recompute()

boolean8 = body9.newObject("PartDesign::Boolean", "Boolean007")
boolean8.Type = "Fuse"
boolean8.addObjects([body8])

doc.recompute()
